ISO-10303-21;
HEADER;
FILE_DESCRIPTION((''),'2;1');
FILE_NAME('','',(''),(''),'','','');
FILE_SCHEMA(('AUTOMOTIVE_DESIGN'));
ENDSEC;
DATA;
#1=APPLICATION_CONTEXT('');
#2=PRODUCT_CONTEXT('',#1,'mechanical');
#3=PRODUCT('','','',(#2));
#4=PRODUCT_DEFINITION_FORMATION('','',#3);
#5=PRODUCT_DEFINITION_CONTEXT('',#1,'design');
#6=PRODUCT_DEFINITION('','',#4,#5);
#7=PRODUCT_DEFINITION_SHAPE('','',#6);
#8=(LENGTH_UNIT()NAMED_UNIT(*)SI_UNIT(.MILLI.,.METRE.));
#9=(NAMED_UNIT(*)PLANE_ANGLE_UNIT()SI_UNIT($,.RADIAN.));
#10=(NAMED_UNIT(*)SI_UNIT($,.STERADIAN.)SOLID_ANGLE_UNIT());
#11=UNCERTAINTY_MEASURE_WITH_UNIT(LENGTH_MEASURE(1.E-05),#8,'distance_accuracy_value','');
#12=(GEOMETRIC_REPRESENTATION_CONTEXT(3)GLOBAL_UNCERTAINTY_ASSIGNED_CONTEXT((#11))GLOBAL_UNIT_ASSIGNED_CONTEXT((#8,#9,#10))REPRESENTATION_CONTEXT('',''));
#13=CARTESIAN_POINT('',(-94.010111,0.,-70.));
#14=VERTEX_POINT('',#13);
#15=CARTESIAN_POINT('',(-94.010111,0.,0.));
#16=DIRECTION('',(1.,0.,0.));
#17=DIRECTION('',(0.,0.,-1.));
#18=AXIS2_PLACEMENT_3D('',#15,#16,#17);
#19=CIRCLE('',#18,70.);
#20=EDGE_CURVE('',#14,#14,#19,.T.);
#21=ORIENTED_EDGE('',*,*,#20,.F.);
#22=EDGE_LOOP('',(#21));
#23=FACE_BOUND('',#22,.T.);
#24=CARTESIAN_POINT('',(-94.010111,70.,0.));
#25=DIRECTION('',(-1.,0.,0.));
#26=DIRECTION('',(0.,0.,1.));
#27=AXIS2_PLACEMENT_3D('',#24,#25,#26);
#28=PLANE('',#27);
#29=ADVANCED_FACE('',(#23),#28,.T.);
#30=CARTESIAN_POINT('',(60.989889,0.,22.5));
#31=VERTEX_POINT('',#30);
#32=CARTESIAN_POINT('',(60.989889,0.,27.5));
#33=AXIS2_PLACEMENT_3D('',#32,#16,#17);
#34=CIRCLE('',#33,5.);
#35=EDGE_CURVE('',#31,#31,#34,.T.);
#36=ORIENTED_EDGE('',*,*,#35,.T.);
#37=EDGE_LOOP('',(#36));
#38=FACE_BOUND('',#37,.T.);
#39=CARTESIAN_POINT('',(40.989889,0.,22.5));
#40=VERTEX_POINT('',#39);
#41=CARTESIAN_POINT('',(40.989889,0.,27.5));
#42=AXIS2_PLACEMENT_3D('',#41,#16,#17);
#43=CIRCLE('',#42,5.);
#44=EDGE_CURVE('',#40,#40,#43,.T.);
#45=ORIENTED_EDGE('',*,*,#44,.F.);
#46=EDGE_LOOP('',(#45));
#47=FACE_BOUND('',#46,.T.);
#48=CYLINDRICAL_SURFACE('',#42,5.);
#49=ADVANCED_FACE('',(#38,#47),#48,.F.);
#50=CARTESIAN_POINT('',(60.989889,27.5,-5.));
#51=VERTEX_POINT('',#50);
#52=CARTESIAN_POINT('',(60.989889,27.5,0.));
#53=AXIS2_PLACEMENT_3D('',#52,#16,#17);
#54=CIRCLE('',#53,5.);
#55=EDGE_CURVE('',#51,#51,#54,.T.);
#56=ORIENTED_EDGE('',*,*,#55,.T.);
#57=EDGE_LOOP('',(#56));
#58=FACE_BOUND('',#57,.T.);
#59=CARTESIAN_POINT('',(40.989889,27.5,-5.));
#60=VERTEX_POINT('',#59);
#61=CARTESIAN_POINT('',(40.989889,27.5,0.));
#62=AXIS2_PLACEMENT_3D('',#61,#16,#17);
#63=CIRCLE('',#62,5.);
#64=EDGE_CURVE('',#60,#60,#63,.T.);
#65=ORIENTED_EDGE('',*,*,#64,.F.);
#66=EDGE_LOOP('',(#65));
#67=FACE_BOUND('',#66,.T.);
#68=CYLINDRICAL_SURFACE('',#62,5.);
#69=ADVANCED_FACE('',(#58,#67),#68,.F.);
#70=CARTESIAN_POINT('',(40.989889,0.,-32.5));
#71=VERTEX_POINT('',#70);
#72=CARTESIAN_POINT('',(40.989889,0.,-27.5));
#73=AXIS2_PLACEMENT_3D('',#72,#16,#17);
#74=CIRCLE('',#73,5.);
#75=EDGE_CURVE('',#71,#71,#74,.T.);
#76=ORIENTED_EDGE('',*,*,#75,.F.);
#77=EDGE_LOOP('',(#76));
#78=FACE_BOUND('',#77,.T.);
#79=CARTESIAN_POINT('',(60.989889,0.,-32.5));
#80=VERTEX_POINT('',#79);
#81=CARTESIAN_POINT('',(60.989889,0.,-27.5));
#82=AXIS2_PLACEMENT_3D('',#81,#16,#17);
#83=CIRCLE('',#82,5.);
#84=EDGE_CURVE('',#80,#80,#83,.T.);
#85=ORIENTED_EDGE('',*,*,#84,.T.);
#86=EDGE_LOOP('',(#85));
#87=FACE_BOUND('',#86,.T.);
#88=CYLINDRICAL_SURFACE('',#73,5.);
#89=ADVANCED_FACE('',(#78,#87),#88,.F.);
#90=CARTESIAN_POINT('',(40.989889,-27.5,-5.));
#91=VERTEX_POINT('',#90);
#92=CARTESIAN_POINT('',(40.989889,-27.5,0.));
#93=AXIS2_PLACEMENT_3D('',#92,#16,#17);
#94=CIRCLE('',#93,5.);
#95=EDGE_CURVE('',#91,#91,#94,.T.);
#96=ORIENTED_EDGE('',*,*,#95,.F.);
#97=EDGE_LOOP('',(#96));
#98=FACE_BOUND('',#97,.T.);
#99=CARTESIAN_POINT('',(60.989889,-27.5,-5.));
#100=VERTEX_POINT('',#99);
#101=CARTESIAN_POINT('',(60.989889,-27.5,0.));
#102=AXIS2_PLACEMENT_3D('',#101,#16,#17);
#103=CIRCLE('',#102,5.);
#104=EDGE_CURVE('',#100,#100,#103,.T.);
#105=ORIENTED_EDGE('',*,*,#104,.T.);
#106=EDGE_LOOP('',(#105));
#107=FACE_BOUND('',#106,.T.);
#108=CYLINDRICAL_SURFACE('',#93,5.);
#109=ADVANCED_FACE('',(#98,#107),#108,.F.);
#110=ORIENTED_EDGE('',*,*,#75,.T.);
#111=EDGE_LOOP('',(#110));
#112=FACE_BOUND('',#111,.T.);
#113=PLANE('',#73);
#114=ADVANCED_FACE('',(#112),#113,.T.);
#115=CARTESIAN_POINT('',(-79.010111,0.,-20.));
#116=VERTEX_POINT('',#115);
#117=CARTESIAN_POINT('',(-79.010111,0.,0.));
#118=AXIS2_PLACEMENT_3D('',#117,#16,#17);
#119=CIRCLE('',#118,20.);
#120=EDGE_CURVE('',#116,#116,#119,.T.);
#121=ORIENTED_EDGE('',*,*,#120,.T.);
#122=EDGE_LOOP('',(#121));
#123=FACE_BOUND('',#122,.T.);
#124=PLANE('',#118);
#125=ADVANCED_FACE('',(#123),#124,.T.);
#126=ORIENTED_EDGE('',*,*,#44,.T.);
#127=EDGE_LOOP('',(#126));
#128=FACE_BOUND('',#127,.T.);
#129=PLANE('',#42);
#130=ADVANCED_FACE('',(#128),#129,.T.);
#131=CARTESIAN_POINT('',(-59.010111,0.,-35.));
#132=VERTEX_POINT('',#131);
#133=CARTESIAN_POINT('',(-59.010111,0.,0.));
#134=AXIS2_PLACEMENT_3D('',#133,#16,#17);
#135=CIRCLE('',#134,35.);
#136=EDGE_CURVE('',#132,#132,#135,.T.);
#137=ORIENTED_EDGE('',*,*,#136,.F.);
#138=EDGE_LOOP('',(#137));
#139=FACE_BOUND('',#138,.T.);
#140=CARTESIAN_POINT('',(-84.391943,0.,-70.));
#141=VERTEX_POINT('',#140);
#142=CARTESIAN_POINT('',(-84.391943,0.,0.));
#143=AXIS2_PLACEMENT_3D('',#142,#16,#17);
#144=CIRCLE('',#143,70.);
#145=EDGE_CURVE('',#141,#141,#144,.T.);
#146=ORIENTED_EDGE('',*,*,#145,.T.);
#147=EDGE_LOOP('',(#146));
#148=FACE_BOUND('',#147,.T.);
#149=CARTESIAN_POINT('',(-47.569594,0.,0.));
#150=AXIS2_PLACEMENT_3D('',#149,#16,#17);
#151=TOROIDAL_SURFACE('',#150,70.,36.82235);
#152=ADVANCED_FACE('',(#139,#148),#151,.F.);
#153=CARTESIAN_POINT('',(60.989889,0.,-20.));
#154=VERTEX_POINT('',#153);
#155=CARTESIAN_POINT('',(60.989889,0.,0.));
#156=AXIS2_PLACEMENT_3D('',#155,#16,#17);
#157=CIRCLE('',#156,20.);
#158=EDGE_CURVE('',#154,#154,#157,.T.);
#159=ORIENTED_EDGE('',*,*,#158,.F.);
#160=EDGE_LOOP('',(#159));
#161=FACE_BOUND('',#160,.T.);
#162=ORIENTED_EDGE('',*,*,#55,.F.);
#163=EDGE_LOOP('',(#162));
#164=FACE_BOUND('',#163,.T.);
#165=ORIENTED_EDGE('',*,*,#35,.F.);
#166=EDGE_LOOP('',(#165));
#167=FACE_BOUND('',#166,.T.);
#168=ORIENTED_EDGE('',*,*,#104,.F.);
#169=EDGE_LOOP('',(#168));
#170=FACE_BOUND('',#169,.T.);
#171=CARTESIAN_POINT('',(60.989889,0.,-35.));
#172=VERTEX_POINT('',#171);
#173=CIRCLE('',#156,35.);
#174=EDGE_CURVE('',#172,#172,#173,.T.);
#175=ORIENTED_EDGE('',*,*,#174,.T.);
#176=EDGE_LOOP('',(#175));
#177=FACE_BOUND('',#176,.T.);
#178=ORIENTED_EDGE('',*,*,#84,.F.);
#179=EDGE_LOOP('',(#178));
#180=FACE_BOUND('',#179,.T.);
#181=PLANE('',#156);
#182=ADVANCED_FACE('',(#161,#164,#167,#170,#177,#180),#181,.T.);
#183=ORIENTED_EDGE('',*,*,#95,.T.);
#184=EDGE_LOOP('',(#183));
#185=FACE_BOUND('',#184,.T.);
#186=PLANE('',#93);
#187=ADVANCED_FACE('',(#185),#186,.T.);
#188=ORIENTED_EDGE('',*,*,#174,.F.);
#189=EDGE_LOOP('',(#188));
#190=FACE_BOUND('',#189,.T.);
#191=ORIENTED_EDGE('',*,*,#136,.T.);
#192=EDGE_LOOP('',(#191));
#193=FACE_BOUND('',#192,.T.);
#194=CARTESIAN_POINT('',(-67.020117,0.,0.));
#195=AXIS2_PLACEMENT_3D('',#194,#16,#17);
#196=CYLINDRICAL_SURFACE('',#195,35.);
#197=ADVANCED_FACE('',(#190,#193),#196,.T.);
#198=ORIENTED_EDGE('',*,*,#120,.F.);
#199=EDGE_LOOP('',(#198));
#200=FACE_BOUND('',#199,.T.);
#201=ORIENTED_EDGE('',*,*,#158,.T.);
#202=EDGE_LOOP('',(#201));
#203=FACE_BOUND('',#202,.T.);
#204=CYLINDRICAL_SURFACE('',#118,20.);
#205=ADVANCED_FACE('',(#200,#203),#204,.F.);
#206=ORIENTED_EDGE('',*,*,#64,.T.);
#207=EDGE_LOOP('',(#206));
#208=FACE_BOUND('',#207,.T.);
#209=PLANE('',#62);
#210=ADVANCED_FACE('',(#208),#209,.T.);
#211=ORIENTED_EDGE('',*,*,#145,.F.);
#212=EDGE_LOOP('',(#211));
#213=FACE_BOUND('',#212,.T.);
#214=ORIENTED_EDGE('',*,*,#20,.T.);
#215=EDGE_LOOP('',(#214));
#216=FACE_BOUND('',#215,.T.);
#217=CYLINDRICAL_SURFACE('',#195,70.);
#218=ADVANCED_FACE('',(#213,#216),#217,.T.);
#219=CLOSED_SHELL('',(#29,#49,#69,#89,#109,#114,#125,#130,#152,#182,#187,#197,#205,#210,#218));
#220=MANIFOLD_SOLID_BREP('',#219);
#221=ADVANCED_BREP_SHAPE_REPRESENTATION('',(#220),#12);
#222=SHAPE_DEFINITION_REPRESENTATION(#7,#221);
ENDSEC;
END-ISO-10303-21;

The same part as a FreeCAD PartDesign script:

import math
import FreeCAD as App
import Part
import Sketcher
from FreeCAD import Vector

doc = App.newDocument("Part")
body = doc.addObject("PartDesign::Body", "Body")

sketch1 = doc.addObject("Sketcher::SketchObject", "Sketch")
body.addObject(sketch1)
sketch1.AttachmentSupport = (doc.XY_Plane, [""])
sketch1.MapMode = "FlatFace"
sketch1.addGeometry([
    Part.LineSegment(Vector(-94, 70, 0), Vector(-94, 0, 0)),
    Part.LineSegment(Vector(-94, 0, 0), Vector(61, 0, 0)),
    Part.LineSegment(Vector(61, 0, 0), Vector(61, 35, 0)),
    Part.LineSegment(Vector(61, 35, 0), Vector(-59, 35, 0)),
    Part.ArcOfCircle(Part.Circle(Vector(-48, 70, 0), Vector(0, 0, 1), 37), math.radians(-180), math.radians(-108)),
    Part.LineSegment(Vector(-84, 70, 0), Vector(-94, 70, 0)),
], False)
sketch1.addConstraint([
    Sketcher.Constraint("Coincident", 0, 2, 1, 1),
    Sketcher.Constraint("Coincident", 1, 2, 2, 1),
    Sketcher.Constraint("Coincident", 2, 2, 3, 1),
    Sketcher.Constraint("Coincident", 3, 2, 4, 2),
    Sketcher.Constraint("Coincident", 4, 1, 5, 1),
    Sketcher.Constraint("Coincident", 5, 2, 0, 1),
    Sketcher.Constraint("Vertical", 0),
    Sketcher.Constraint("Horizontal", 1),
    Sketcher.Constraint("Vertical", 2),
    Sketcher.Constraint("Horizontal", 3),
    Sketcher.Constraint("Horizontal", 5),
    Sketcher.Constraint("PointOnObject", 0, 2, -1),
    Sketcher.Constraint("DistanceX", 1, 1, 1, 2, 155.0),
    Sketcher.Constraint("DistanceX", 3, 2, 3, 1, 120.0),
    Sketcher.Constraint("DistanceY", 0, 2, 0, 1, 70.0),
    Sketcher.Constraint("DistanceY", 2, 1, 2, 2, 35.0),
    Sketcher.Constraint("DistanceY", -1, 1, 4, 3, 70.0),
    Sketcher.Constraint("Radius", 4, 36.82235),
    Sketcher.Constraint("DistanceX", 0, 2, -1, 1, 94.010111),
])
revolution = doc.addObject("PartDesign::Revolution", "Revolution")
body.addObject(revolution)
revolution.Profile = sketch1
revolution.ReferenceAxis = (sketch1, ["H_Axis"])
revolution.Angle = 360

sketch2 = doc.addObject("Sketcher::SketchObject", "Sketch001")
body.addObject(sketch2)
sketch2.AttachmentSupport = (doc.YZ_Plane, [""])
sketch2.MapMode = "FlatFace"
sketch2.AttachmentOffset = App.Placement(Vector(0, 0, 60.989889), App.Rotation())
sketch2.addGeometry(Part.Circle(Vector(0, 0, 0), Vector(0, 0, 1), 20), False)
sketch2.addConstraint([
    Sketcher.Constraint("Coincident", 0, 3, -1, 1),
    Sketcher.Constraint("Diameter", 0, 40.0),
])
pocket1 = doc.addObject("PartDesign::Pocket", "Pocket")
body.addObject(pocket1)
pocket1.Profile = sketch2
pocket1.Length = 140

sketch3 = doc.addObject("Sketcher::SketchObject", "Sketch002")
body.addObject(sketch3)
sketch3.AttachmentSupport = (doc.YZ_Plane, [""])
sketch3.MapMode = "FlatFace"
sketch3.AttachmentOffset = App.Placement(Vector(0, 0, 60.989889), App.Rotation())
sketch3.addGeometry([
    Part.Circle(Vector(28, 0, 0), Vector(0, 0, 1), 5),
    Part.Circle(Vector(0, -28, 0), Vector(0, 0, 1), 5),
    Part.Circle(Vector(0, 28, 0), Vector(0, 0, 1), 5),
    Part.Circle(Vector(-28, 0, 0), Vector(0, 0, 1), 5),
], False)
sketch3.addConstraint([
    Sketcher.Constraint("Equal", 0, 1),
    Sketcher.Constraint("Equal", 1, 2),
    Sketcher.Constraint("Equal", 2, 3),
    Sketcher.Constraint("Symmetric", 1, 3, 2, 3, -1, 1),
    Sketcher.Constraint("Symmetric", 0, 3, 3, 3, -1, 1),
    Sketcher.Constraint("PointOnObject", 0, 3, -1),
    Sketcher.Constraint("PointOnObject", 1, 3, -2),
    Sketcher.Constraint("Diameter", 0, 10.0),
    Sketcher.Constraint("DistanceY", 1, 3, 2, 3, 55.0),
    Sketcher.Constraint("DistanceX", 3, 3, 0, 3, 55.0),
])
pocket2 = doc.addObject("PartDesign::Pocket", "Pocket001")
body.addObject(pocket2)
pocket2.Profile = sketch3
pocket2.Length = 20

doc.recompute()
